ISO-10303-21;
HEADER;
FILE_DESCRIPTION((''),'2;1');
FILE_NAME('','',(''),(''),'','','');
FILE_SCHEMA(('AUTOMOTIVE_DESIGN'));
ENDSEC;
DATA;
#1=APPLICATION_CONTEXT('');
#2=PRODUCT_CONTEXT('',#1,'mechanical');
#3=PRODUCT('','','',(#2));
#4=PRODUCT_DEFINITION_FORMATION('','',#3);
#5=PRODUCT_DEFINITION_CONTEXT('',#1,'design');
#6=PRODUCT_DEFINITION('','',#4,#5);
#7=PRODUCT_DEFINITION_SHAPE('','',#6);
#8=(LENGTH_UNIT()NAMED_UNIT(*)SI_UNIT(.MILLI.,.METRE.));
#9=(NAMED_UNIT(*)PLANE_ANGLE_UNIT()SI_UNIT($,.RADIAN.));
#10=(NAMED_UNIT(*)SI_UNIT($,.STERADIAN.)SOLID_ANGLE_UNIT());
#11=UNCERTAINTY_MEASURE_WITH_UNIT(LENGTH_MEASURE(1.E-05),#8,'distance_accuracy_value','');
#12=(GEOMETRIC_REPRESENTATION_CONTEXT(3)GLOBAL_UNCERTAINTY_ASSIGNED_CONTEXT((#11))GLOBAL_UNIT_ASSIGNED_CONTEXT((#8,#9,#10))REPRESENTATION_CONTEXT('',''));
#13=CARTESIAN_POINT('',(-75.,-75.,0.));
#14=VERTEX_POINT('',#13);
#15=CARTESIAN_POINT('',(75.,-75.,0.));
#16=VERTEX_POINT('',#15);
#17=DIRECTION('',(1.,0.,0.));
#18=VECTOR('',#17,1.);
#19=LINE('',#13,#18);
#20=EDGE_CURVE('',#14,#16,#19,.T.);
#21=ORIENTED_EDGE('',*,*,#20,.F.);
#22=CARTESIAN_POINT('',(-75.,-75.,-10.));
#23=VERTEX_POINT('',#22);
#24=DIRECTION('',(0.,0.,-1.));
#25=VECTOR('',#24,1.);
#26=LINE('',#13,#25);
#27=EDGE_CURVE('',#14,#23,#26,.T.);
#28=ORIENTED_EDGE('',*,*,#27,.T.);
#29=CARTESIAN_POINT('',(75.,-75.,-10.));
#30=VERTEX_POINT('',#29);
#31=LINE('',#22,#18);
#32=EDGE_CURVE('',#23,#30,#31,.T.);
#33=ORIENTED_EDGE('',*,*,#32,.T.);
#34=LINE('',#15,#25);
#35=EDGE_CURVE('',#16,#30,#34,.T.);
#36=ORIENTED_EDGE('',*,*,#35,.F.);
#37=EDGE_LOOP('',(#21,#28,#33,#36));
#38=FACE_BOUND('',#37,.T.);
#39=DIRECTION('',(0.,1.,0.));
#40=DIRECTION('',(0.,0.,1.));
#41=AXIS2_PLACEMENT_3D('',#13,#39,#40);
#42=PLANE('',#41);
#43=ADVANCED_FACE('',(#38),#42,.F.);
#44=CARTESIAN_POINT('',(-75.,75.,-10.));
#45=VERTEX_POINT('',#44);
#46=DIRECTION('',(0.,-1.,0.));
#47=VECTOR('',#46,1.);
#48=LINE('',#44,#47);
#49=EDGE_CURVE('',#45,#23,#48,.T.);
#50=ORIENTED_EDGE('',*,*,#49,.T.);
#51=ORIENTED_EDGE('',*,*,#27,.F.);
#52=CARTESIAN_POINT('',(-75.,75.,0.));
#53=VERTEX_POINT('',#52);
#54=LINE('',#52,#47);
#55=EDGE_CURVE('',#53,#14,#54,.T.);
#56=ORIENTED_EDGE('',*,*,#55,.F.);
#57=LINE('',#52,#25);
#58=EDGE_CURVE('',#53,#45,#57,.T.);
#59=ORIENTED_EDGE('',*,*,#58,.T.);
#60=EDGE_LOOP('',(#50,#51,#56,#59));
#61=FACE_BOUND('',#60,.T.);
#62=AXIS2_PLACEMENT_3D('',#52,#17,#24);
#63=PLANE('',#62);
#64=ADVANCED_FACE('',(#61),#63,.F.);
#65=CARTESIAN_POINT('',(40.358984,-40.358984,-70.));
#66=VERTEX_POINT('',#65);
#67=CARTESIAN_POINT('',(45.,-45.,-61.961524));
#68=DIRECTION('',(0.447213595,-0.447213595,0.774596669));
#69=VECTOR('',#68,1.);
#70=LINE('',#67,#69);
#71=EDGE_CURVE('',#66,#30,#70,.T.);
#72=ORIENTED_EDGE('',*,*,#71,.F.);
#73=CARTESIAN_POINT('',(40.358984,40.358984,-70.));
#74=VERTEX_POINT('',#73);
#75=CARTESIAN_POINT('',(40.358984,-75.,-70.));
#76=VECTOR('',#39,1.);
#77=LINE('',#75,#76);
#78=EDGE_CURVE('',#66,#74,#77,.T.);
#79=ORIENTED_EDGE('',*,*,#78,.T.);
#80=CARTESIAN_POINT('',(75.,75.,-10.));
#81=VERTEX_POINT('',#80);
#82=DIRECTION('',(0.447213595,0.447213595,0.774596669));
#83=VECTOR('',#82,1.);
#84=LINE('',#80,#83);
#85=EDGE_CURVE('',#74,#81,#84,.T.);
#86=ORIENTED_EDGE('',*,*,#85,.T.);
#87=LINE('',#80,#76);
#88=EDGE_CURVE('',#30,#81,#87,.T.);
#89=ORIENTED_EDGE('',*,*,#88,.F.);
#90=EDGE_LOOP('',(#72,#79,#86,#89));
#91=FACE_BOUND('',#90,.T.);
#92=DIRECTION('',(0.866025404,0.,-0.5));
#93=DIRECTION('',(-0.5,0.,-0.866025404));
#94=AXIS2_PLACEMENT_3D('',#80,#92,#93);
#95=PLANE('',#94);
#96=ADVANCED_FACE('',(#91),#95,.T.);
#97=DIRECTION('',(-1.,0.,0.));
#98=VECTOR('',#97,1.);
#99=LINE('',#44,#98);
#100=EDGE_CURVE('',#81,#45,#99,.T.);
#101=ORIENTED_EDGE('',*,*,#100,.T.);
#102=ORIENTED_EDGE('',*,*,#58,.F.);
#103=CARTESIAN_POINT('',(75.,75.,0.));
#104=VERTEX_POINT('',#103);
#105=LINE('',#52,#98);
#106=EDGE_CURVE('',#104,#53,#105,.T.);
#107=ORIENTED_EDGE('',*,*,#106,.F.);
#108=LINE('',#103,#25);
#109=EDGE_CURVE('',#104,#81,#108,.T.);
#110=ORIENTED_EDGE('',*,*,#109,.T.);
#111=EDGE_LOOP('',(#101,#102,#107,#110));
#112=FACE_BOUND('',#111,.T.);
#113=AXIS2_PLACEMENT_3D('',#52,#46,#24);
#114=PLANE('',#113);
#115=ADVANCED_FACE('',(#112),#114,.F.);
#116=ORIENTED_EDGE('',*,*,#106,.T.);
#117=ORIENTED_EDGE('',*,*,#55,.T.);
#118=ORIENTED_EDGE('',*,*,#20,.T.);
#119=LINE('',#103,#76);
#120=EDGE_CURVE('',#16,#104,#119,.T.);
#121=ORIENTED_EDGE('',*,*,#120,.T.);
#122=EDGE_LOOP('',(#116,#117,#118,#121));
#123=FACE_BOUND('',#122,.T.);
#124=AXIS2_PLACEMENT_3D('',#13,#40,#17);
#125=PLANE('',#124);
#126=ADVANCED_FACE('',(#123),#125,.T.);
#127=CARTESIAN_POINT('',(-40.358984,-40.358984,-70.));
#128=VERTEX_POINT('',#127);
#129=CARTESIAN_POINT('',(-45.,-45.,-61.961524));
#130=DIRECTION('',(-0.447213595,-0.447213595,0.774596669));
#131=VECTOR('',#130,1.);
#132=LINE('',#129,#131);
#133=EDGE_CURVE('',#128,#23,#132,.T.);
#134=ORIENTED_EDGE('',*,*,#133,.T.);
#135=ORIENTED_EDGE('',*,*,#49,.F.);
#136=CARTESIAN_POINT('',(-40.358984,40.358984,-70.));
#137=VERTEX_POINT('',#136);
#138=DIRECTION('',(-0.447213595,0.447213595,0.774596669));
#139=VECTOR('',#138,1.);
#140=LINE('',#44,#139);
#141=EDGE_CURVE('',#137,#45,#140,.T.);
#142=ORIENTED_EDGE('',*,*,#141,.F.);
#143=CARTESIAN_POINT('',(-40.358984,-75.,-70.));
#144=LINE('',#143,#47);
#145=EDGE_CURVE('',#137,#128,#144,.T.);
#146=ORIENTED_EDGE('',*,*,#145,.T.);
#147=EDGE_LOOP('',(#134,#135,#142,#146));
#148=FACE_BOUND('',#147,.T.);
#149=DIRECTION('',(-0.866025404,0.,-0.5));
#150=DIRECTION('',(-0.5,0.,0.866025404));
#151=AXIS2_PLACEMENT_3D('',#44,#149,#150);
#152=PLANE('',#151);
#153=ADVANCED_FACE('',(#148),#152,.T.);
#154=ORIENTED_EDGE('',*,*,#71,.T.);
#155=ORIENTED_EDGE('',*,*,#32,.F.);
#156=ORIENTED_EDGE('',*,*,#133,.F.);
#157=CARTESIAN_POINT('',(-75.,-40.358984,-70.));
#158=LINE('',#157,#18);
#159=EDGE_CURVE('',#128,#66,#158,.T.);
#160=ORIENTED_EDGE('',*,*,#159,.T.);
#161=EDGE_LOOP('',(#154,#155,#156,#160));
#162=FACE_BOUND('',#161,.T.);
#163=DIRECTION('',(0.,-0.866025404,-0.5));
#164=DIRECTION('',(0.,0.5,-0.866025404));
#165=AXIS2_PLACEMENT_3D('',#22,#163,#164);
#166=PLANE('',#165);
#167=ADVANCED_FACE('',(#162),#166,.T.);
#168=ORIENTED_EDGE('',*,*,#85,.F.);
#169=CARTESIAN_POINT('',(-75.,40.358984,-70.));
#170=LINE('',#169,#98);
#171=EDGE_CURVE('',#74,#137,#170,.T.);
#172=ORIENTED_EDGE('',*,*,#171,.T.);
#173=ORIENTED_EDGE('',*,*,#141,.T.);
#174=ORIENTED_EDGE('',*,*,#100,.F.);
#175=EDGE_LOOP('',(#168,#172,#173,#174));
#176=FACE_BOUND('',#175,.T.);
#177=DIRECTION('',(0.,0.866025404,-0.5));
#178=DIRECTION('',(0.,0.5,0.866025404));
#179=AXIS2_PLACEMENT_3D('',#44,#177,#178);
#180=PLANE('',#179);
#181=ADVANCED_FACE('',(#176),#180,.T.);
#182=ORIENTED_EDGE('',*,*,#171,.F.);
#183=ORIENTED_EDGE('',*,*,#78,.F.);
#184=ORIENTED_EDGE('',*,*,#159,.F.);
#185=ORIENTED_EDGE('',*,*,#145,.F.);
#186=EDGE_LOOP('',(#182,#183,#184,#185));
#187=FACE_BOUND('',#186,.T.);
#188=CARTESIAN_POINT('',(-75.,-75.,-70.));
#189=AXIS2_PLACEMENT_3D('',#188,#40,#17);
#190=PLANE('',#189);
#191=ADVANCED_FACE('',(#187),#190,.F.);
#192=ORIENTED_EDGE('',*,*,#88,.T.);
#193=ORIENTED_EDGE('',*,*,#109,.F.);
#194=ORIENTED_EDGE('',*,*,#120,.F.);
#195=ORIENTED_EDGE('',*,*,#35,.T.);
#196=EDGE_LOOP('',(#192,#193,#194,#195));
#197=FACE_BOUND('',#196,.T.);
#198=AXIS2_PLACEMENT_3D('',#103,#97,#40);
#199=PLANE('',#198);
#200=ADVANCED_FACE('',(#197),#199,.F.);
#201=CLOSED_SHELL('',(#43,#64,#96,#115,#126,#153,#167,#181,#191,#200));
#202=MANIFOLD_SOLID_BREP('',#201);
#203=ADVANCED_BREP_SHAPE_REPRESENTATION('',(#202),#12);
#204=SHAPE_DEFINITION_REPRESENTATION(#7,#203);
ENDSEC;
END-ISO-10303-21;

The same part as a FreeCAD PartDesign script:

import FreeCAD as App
import Part
import Sketcher
from FreeCAD import Vector
Q = App.Units.Quantity


def add_polygon(sketch, points):
    """Adds a closed chain of lines whose ends are joined by coincident constraints."""
    first, n = sketch.GeometryCount, len(points)
    for a, b in zip(points, points[1:] + points[:1]):
        sketch.addGeometry(Part.LineSegment(App.Vector(*a, 0), App.Vector(*b, 0)), False)
    for i in range(n):
        sketch.addConstraint(Sketcher.Constraint("Coincident", first + i, 2, first + (i + 1) % n, 1))

doc = App.newDocument("Part")
params = doc.addObject("Spreadsheet::Sheet", "Params")
for row, (alias, value) in enumerate([
    ("sketch1_width", "150 mm"),
    ("pad1_length", "10 mm"),
    ("sketch2_width", "150 mm"),
    ("pad2_length", "60 mm"),
    ("pad2_taper", "-30 deg"),
], start=1):
    params.set(f"A{row}", alias)
    params.set(f"B{row}", "=" + value)
    params.setAlias(f"B{row}", alias)

body = doc.addObject("PartDesign::Body", "Body")

sketch1 = body.newObject("Sketcher::SketchObject", "Sketch")
sketch1.AttachmentSupport = (doc.getObject("XY_Plane"), [""])
sketch1.MapMode = "FlatFace"
sketch1.AttachmentOffset = App.Placement(Vector(0, 0, -10), App.Rotation())
add_polygon(sketch1, [(-75, 75), (-75, -75), (75, -75), (75, 75)])
sketch1.addConstraint([
    Sketcher.Constraint("Vertical", 0),
    Sketcher.Constraint("Horizontal", 1),
    Sketcher.Constraint("Vertical", 2),
    Sketcher.Constraint("Horizontal", 3),
    Sketcher.Constraint("Symmetric", 0, 2, 2, 2, -1, 1),
    Sketcher.Constraint("Equal", 3, 0),
    Sketcher.Constraint("DistanceX", 1, 1, 1, 2, Q("150 mm")),
])
sketch1.setExpression("Constraints[10]", "Params.sketch1_width")
pad1 = body.newObject("PartDesign::Pad", "Pad")
pad1.Profile = sketch1
pad1.setExpression("Length", "Params.pad1_length")

sketch2 = body.newObject("Sketcher::SketchObject", "Sketch001")
sketch2.AttachmentSupport = (doc.getObject("XY_Plane"), [""])
sketch2.MapMode = "FlatFace"
sketch2.AttachmentOffset = App.Placement(Vector(0, 0, -10), App.Rotation())
add_polygon(sketch2, [(-75, 75), (-75, -75), (75, -75), (75, 75)])
sketch2.addConstraint([
    Sketcher.Constraint("Vertical", 0),
    Sketcher.Constraint("Horizontal", 1),
    Sketcher.Constraint("Vertical", 2),
    Sketcher.Constraint("Horizontal", 3),
    Sketcher.Constraint("Symmetric", 0, 2, 2, 2, -1, 1),
    Sketcher.Constraint("Equal", 3, 0),
    Sketcher.Constraint("DistanceX", 1, 1, 1, 2, Q("150 mm")),
])
sketch2.setExpression("Constraints[10]", "Params.sketch2_width")
pad2 = body.newObject("PartDesign::Pad", "Pad001")
pad2.Profile = sketch2
pad2.setExpression("Length", "Params.pad2_length")
pad2.Reversed = True
pad2.setExpression("TaperAngle", "Params.pad2_taper")

doc.recompute()
